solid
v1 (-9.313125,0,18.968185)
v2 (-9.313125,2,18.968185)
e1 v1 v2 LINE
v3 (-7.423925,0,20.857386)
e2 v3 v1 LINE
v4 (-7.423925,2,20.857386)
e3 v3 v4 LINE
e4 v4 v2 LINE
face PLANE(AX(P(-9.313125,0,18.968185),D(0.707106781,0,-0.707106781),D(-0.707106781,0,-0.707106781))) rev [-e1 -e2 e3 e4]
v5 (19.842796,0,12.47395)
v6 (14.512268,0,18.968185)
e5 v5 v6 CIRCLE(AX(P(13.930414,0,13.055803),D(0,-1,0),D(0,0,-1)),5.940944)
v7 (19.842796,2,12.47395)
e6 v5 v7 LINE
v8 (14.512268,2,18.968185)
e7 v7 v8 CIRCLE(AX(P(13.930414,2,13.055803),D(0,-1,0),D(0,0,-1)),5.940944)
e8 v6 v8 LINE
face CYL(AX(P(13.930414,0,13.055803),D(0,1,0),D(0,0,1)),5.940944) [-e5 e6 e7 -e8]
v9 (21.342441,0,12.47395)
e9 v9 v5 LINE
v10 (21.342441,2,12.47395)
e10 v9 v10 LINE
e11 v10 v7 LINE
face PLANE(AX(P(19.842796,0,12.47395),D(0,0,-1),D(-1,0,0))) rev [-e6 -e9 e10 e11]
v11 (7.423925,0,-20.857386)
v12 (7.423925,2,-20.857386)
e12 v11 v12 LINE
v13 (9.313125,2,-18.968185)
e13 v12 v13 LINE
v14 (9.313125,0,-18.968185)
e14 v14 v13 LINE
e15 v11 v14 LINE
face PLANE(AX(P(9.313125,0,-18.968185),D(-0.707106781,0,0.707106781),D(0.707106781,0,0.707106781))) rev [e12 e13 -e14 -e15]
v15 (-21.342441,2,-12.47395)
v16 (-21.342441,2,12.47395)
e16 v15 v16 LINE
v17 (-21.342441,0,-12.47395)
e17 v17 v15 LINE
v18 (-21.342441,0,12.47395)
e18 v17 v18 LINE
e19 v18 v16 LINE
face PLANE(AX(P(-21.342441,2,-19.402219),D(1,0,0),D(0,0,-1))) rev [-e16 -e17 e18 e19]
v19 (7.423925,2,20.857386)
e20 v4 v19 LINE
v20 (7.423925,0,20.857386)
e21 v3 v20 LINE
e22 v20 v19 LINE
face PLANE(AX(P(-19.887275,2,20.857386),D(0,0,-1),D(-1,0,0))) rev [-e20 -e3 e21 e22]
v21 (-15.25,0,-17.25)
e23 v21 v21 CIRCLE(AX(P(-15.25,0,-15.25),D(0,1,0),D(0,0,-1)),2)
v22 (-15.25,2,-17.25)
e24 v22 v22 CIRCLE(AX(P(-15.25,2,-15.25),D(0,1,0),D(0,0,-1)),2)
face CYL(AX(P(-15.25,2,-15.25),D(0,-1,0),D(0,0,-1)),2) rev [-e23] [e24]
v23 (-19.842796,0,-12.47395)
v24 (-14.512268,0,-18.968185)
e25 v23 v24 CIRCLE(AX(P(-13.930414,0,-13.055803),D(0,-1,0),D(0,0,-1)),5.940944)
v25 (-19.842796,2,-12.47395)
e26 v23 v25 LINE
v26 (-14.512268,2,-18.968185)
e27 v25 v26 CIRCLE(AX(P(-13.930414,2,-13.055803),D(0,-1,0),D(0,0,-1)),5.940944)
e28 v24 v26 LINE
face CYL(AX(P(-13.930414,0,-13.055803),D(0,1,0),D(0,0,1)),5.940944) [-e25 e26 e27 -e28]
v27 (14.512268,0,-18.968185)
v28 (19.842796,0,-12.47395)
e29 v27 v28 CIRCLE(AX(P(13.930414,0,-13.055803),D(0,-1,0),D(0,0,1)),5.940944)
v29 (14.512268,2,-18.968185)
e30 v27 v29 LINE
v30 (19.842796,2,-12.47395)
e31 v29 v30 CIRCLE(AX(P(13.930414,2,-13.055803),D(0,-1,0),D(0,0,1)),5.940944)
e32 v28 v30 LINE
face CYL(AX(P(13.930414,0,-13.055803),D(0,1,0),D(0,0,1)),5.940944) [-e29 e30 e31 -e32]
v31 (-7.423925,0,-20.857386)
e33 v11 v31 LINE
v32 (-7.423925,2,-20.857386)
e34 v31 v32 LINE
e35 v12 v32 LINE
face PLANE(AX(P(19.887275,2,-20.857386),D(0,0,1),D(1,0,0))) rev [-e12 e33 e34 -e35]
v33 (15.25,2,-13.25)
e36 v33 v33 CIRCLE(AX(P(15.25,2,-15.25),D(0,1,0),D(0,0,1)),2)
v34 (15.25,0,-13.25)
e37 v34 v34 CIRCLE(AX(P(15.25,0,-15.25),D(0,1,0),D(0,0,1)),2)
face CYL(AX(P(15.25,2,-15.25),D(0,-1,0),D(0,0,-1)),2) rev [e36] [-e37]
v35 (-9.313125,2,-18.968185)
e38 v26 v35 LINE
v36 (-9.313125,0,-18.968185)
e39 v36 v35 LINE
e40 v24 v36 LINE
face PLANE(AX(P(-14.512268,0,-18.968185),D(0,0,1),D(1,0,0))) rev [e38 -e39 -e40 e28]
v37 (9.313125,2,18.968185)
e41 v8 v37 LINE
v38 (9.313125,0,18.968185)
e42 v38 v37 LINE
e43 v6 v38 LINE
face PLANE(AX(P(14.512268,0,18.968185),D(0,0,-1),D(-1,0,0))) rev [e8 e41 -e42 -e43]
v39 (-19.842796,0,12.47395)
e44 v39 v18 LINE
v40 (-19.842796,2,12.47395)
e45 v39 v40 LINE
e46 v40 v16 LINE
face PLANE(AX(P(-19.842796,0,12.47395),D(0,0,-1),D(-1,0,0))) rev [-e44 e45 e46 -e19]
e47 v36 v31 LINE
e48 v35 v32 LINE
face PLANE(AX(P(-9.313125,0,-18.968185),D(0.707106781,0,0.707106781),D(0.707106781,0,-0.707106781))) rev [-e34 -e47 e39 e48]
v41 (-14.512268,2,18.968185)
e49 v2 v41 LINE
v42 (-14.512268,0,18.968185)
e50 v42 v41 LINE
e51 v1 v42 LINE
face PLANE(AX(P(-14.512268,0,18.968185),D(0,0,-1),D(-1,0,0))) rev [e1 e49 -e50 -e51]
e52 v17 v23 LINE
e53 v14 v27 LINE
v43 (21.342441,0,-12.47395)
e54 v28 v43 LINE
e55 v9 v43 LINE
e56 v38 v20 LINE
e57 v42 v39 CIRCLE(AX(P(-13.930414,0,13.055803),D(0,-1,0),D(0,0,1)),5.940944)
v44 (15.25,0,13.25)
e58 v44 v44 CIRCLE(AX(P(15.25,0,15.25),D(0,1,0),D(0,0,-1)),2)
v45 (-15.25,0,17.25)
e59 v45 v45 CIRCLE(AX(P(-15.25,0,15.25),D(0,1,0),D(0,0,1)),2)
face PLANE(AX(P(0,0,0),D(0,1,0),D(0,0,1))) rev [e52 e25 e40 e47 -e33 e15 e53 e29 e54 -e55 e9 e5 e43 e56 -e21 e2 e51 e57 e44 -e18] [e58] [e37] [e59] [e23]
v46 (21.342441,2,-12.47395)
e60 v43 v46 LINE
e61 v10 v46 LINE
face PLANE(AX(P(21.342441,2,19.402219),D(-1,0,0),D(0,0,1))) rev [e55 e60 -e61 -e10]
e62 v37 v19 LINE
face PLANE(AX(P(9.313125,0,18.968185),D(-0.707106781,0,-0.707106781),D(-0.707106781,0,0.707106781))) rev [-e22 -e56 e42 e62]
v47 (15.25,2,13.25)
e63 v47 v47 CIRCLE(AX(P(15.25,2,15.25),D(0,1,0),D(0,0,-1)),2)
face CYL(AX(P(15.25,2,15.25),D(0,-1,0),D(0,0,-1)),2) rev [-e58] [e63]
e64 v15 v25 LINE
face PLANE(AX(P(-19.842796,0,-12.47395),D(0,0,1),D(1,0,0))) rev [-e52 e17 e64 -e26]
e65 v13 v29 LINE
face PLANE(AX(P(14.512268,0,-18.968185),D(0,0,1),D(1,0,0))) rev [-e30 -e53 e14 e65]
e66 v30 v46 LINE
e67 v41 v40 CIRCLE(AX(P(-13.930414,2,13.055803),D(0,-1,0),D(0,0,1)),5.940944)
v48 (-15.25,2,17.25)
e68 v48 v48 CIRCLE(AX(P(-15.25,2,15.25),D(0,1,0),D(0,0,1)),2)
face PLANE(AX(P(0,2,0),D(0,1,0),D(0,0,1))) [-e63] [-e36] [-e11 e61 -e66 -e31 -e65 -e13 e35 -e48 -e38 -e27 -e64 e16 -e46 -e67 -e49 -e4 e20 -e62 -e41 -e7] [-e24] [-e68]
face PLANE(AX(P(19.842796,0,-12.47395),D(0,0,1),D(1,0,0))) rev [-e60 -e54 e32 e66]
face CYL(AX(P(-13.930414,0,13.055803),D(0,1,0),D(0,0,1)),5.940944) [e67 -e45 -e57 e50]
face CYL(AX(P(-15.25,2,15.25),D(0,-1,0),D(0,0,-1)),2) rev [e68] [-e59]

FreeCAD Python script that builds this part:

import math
import FreeCAD as App
import Part
import Sketcher

V = App.Vector
Q = App.Units.Quantity


def add_polygon(sketch, points):
    """Adds a closed chain of lines whose ends are joined by coincident constraints."""
    first, n = sketch.GeometryCount, len(points)
    for a, b in zip(points, points[1:] + points[:1]):
        sketch.addGeometry(Part.LineSegment(App.Vector(*a, 0), App.Vector(*b, 0)), False)
    for i in range(n):
        sketch.addConstraint(Sketcher.Constraint("Coincident", first + i, 2, first + (i + 1) % n, 1))

doc = App.newDocument("Part")
body = doc.addObject("PartDesign::Body", "Body")

sketch1 = doc.addObject("Sketcher::SketchObject", "Sketch")
body.addObject(sketch1)
sketch1.AttachmentSupport = (doc.XZ_Plane, [""])
sketch1.MapMode = "FlatFace"
add_polygon(sketch1, [(-19.9, 20.9), (19.9, 20.9), (21.3, 19.4), (21.3, -19.4), (19.9, -20.9), (-19.9, -20.9), (-21.3, -19.4), (-21.3, 19.4)])
sketch1.addGeometry(Part.Circle(V(-15.2, 15.2, 0), V(0, 0, 1), 2), False)
sketch1.addGeometry(Part.Circle(V(15.2, 15.2, 0), V(0, 0, 1), 2), False)
sketch1.addGeometry(Part.Circle(V(-15.2, -15.2, 0), V(0, 0, 1), 2), False)
sketch1.addGeometry(Part.Circle(V(15.2, -15.2, 0), V(0, 0, 1), 2), False)
sketch1.addConstraint([
    Sketcher.Constraint("Horizontal", 0),
    Sketcher.Constraint("Vertical", 2),
    Sketcher.Constraint("Horizontal", 4),
    Sketcher.Constraint("Vertical", 6),
    Sketcher.Constraint("Equal", 8, 9),
    Sketcher.Constraint("Equal", 9, 10),
    Sketcher.Constraint("Equal", 10, 11),
    Sketcher.Constraint("Symmetric", 9, 3, 10, 3, -1, 1),
    Sketcher.Constraint("Symmetric", 8, 3, 11, 3, -1, 1),
    Sketcher.Constraint("Symmetric", 0, 2, 4, 2, -1, 1),
    Sketcher.Constraint("Symmetric", 1, 2, 5, 2, -1, 1),
    Sketcher.Constraint("Symmetric", 8, 3, 9, 3, -2),
    Sketcher.Constraint("Perpendicular", 1, 3),
    Sketcher.Constraint("Perpendicular", 5, 7),
    Sketcher.Constraint("Horizontal", 2, 2, 5, 2),
    Sketcher.Constraint("Horizontal", 1, 2, 6, 2),
    Sketcher.Constraint("Vertical", 0, 2, 3, 2),
    Sketcher.Constraint("Diameter", 8, Q("4 mm")),
    Sketcher.Constraint("DistanceX", 8, 3, 9, 3, Q("30.5 mm")),
    Sketcher.Constraint("DistanceY", 10, 3, 8, 3, Q("30.5 mm")),
    Sketcher.Constraint("DistanceX", 0, 1, 0, 2, Q("39.774549 mm")),
    Sketcher.Constraint("DistanceY", 2, 2, 2, 1, Q("38.804438 mm")),
    Sketcher.Constraint("DistanceX", -1, 1, 1, 2, Q("21.342441 mm")),
])
pad1 = doc.addObject("PartDesign::Pad", "Pad")
body.addObject(pad1)
pad1.Profile = sketch1
pad1.Length = 2
pad1.Reversed = True

sketch2 = doc.addObject("Sketcher::SketchObject", "Sketch001")
body.addObject(sketch2)
sketch2.AttachmentSupport = (doc.XZ_Plane, [""])
sketch2.MapMode = "FlatFace"
sketch2.AttachmentOffset = App.Placement(V(0, 0, -2), App.Rotation())
sketch2.addGeometry([
    Part.LineSegment(V(-21.3, -12.5, 0), V(-19.8, -12.5, 0)),
    Part.ArcOfCircle(Part.Circle(V(-13.9, -13.1, 0), V(0, 0, 1), 5.9), math.radians(174), math.radians(264)),
    Part.LineSegment(V(-14.5, -19, 0), V(-9.3, -19, 0)),
    Part.LineSegment(V(-9.3, -19, 0), V(-7.4, -20.9, 0)),
    Part.LineSegment(V(-7.4, -20.9, 0), V(-21.3, -20.9, 0)),
    Part.LineSegment(V(-21.3, -20.9, 0), V(-21.3, -12.5, 0)),
    Part.LineSegment(V(21.3, -20.9, 0), V(7.4, -20.9, 0)),
    Part.LineSegment(V(7.4, -20.9, 0), V(9.3, -19, 0)),
    Part.LineSegment(V(9.3, -19, 0), V(14.5, -19, 0)),
    Part.ArcOfCircle(Part.Circle(V(13.9, -13.1, 0), V(0, 0, 1), 5.9), math.radians(-84), math.radians(6)),
    Part.LineSegment(V(19.8, -12.5, 0), V(21.3, -12.5, 0)),
    Part.LineSegment(V(21.3, -12.5, 0), V(21.3, -20.9, 0)),
    Part.LineSegment(V(9.3, 19, 0), V(7.4, 20.9, 0)),
    Part.LineSegment(V(7.4, 20.9, 0), V(21.3, 20.9, 0)),
    Part.LineSegment(V(21.3, 20.9, 0), V(21.3, 12.5, 0)),
    Part.LineSegment(V(21.3, 12.5, 0), V(19.8, 12.5, 0)),
    Part.ArcOfCircle(Part.Circle(V(13.9, 13.1, 0), V(0, 0, 1), 5.9), math.radians(-6), math.radians(84)),
    Part.LineSegment(V(14.5, 19, 0), V(9.3, 19, 0)),
    Part.LineSegment(V(-21.3, 20.9, 0), V(-7.4, 20.9, 0)),
    Part.LineSegment(V(-7.4, 20.9, 0), V(-9.3, 19, 0)),
    Part.LineSegment(V(-9.3, 19, 0), V(-14.5, 19, 0)),
    Part.ArcOfCircle(Part.Circle(V(-13.9, 13.1, 0), V(0, 0, 1), 5.9), math.radians(96), math.radians(186)),
    Part.LineSegment(V(-19.8, 12.5, 0), V(-21.3, 12.5, 0)),
    Part.LineSegment(V(-21.3, 12.5, 0), V(-21.3, 20.9, 0)),
], False)
sketch2.addConstraint([
    Sketcher.Constraint("Coincident", 0, 2, 1, 1),
    Sketcher.Constraint("Coincident", 1, 2, 2, 1),
    Sketcher.Constraint("Coincident", 2, 2, 3, 1),
    Sketcher.Constraint("Coincident", 3, 2, 4, 1),
    Sketcher.Constraint("Coincident", 4, 2, 5, 1),
    Sketcher.Constraint("Coincident", 5, 2, 0, 1),
    Sketcher.Constraint("Coincident", 6, 2, 7, 1),
    Sketcher.Constraint("Coincident", 7, 2, 8, 1),
    Sketcher.Constraint("Coincident", 8, 2, 9, 1),
    Sketcher.Constraint("Coincident", 9, 2, 10, 1),
    Sketcher.Constraint("Coincident", 10, 2, 11, 1),
    Sketcher.Constraint("Coincident", 11, 2, 6, 1),
    Sketcher.Constraint("Coincident", 12, 2, 13, 1),
    Sketcher.Constraint("Coincident", 13, 2, 14, 1),
    Sketcher.Constraint("Coincident", 14, 2, 15, 1),
    Sketcher.Constraint("Coincident", 15, 2, 16, 1),
    Sketcher.Constraint("Coincident", 16, 2, 17, 1),
    Sketcher.Constraint("Coincident", 17, 2, 12, 1),
    Sketcher.Constraint("Coincident", 18, 2, 19, 1),
    Sketcher.Constraint("Coincident", 19, 2, 20, 1),
    Sketcher.Constraint("Coincident", 20, 2, 21, 1),
    Sketcher.Constraint("Coincident", 21, 2, 22, 1),
    Sketcher.Constraint("Coincident", 22, 2, 23, 1),
    Sketcher.Constraint("Coincident", 23, 2, 18, 1),
    Sketcher.Constraint("Horizontal", 0),
    Sketcher.Constraint("Horizontal", 2),
    Sketcher.Constraint("Horizontal", 4),
    Sketcher.Constraint("Vertical", 5),
    Sketcher.Constraint("Horizontal", 6),
    Sketcher.Constraint("Horizontal", 8),
    Sketcher.Constraint("Horizontal", 10),
    Sketcher.Constraint("Vertical", 11),
    Sketcher.Constraint("Horizontal", 13),
    Sketcher.Constraint("Vertical", 14),
    Sketcher.Constraint("Horizontal", 15),
    Sketcher.Constraint("Horizontal", 17),
    Sketcher.Constraint("Horizontal", 18),
    Sketcher.Constraint("Horizontal", 20),
    Sketcher.Constraint("Horizontal", 22),
    Sketcher.Constraint("Vertical", 23),
    Sketcher.Constraint("Equal", 1, 9),
    Sketcher.Constraint("Equal", 9, 16),
    Sketcher.Constraint("Equal", 16, 21),
    Sketcher.Constraint("Symmetric", 1, 3, 16, 3, -1, 1),
    Sketcher.Constraint("Symmetric", 9, 3, 21, 3, -1, 1),
    Sketcher.Constraint("Symmetric", 3, 2, 12, 2, -1, 1),
    Sketcher.Constraint("Symmetric", 5, 2, 14, 2, -1, 1),
    Sketcher.Constraint("Symmetric", 2, 2, 17, 2, -1, 1),
    Sketcher.Constraint("Symmetric", 6, 2, 18, 2, -1, 1),
    Sketcher.Constraint("Symmetric", 7, 2, 19, 2, -1, 1),
    Sketcher.Constraint("Symmetric", 10, 2, 22, 2, -1, 1),
    Sketcher.Constraint("Symmetric", 1, 3, 9, 3, -2),
    Sketcher.Constraint("Symmetric", 3, 2, 6, 2, -2),
    Sketcher.Constraint("Symmetric", 2, 2, 7, 2, -2),
    Sketcher.Constraint("Symmetric", 5, 2, 10, 2, -2),
    Sketcher.Constraint("Perpendicular", 3, 7),
    Sketcher.Constraint("Radius", 1, Q("5.940944 mm")),
    Sketcher.Constraint("DistanceX", 2, 2, 3, 2, Q("1.8892 mm")),
    Sketcher.Constraint("DistanceY", 10, 2, 14, 2, Q("24.947899 mm")),
    Sketcher.Constraint("DistanceX", 0, 1, 0, 2, Q("1.499645 mm")),
    Sketcher.Constraint("DistanceX", 2, 1, 2, 2, Q("5.199142 mm")),
    Sketcher.Constraint("DistanceX", 4, 2, 4, 1, Q("13.918516 mm")),
    Sketcher.Constraint("DistanceY", 5, 1, 5, 2, Q("8.383436 mm")),
    Sketcher.Constraint("DistanceX", 4, 2, -1, 1, Q("21.342441 mm")),
])
pocket1 = doc.addObject("PartDesign::Pocket", "Pocket")
body.addObject(pocket1)
pocket1.Profile = sketch2
pocket1.Type = "ThroughAll"
pocket1.Reversed = True

doc.recompute()
